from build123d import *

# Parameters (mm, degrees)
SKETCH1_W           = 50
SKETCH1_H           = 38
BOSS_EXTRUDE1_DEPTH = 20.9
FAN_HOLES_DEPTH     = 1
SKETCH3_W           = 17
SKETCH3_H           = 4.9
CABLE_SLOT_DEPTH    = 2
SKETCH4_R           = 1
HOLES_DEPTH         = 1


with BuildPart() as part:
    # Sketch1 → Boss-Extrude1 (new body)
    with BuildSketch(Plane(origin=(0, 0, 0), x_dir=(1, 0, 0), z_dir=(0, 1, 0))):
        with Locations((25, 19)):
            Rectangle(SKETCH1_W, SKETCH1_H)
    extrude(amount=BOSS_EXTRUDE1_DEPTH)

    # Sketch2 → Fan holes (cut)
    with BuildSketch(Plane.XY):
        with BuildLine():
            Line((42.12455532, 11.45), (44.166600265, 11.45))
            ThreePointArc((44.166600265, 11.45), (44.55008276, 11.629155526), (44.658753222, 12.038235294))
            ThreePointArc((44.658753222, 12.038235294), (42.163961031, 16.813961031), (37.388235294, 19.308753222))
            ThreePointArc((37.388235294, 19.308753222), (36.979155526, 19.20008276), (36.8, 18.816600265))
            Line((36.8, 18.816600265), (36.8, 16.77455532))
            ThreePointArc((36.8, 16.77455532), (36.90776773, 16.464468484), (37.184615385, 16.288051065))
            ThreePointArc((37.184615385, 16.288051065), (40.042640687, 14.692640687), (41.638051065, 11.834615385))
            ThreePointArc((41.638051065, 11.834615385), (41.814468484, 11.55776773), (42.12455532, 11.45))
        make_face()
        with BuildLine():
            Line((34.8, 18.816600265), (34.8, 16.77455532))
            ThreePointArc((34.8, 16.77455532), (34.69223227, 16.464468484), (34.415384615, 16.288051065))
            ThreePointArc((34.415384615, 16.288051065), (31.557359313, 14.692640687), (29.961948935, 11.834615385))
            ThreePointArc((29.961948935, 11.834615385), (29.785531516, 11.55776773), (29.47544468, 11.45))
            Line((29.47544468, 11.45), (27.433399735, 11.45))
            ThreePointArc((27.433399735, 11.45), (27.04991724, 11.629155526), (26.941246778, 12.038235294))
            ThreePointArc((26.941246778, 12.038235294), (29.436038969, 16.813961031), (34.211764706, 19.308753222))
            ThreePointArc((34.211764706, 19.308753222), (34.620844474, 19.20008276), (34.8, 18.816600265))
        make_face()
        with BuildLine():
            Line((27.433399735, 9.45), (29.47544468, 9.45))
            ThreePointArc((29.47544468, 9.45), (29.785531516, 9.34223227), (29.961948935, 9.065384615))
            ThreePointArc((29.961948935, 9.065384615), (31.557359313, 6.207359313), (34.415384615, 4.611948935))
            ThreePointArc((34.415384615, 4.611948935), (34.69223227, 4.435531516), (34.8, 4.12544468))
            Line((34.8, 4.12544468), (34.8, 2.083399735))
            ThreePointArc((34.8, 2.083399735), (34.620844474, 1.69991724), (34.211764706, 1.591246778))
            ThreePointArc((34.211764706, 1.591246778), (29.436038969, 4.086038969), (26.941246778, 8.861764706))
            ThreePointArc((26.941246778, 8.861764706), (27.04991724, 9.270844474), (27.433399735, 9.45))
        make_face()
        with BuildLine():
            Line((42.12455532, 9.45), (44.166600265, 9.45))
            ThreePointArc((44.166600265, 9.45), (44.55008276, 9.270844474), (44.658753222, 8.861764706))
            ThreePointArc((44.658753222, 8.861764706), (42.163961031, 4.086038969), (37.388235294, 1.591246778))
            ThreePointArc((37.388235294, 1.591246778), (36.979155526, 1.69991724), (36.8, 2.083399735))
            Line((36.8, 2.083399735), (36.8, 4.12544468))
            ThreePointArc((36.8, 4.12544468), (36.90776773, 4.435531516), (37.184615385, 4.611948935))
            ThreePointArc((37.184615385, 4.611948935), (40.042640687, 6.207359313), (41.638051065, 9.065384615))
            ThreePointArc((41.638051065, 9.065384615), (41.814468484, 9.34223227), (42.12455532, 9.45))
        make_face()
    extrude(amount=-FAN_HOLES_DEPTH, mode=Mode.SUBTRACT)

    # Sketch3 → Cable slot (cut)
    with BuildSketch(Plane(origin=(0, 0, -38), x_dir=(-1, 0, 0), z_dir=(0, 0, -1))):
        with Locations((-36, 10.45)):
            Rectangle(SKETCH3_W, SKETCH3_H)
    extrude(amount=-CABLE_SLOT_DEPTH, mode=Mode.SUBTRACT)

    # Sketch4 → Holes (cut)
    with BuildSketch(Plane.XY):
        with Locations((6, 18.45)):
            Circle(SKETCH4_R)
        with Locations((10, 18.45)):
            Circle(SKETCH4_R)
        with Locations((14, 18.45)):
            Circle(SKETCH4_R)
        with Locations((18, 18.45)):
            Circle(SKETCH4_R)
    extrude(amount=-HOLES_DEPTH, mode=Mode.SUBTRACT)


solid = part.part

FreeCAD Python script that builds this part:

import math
import FreeCAD as App
import Part
import Sketcher
from FreeCAD import Vector


def add_polygon(sketch, points):
    """Adds a closed chain of lines whose ends are joined by coincident constraints."""
    first, n = sketch.GeometryCount, len(points)
    for a, b in zip(points, points[1:] + points[:1]):
        sketch.addGeometry(Part.LineSegment(App.Vector(*a, 0), App.Vector(*b, 0)), False)
    for i in range(n):
        sketch.addConstraint(Sketcher.Constraint("Coincident", first + i, 2, first + (i + 1) % n, 1))

doc = App.newDocument("Part")
body = doc.addObject("PartDesign::Body", "Body")

# Sketch on XZ plane
sketch1 = body.newObject("Sketcher::SketchObject", "Sketch")
sketch1.AttachmentSupport = (doc.getObject("XZ_Plane"), [""])
sketch1.MapMode = "FlatFace"
add_polygon(sketch1, [(0, -38), (0, 0), (50, 0), (50, -38)])  # lines 0-3
sketch1.addConstraint([
    Sketcher.Constraint("Vertical", 0),
    Sketcher.Constraint("Horizontal", 1),
    Sketcher.Constraint("Vertical", 2),
    Sketcher.Constraint("Horizontal", 3),
    Sketcher.Constraint("Coincident", 0, 2, -1, 1),
    Sketcher.Constraint("DistanceX", 1, 1, 1, 2, 50.0),
    Sketcher.Constraint("DistanceY", 0, 1, 0, 2, 38.0),
])
pad1 = body.newObject("PartDesign::Pad", "Pad")
pad1.Profile = sketch1
pad1.Length = 20.9
pad1.Reversed = True

# Sketch on XY plane
sketch2 = body.newObject("Sketcher::SketchObject", "Sketch001")
sketch2.AttachmentSupport = (doc.getObject("XY_Plane"), [""])
sketch2.MapMode = "FlatFace"
sketch2.addGeometry([
    Part.LineSegment(Vector(42.12, 11.45, 0), Vector(44.17, 11.45, 0)),  # 0
    Part.ArcOfCircle(Part.Circle(Vector(44.17, 11.95, 0), Vector(0, 0, 1), 0.5), math.radians(-90), math.radians(10)),  # 1
    Part.ArcOfCircle(Part.Circle(Vector(35.8, 10.45, 0), Vector(0, 0, 1), 9), math.radians(10), math.radians(80)),  # 2
    Part.ArcOfCircle(Part.Circle(Vector(37.3, 18.82, 0), Vector(0, 0, 1), 0.5), math.radians(80), math.radians(180)),  # 3
    Part.LineSegment(Vector(36.8, 18.82, 0), Vector(36.8, 16.77, 0)),  # 4
    Part.ArcOfCircle(Part.Circle(Vector(37.3, 16.77, 0), Vector(0, 0, 1), 0.5), math.radians(-180), math.radians(-103)),  # 5
    Part.ArcOfCircle(Part.Circle(Vector(35.8, 10.45, 0), Vector(0, 0, 1), 6), math.radians(13), math.radians(77)),  # 6
    Part.ArcOfCircle(Part.Circle(Vector(42.12, 11.95, 0), Vector(0, 0, 1), 0.5), math.radians(-167), math.radians(-90)),  # 7
    Part.LineSegment(Vector(34.8, 16.77, 0), Vector(34.8, 18.82, 0)),  # 8
    Part.ArcOfCircle(Part.Circle(Vector(34.3, 18.82, 0), Vector(0, 0, 1), 0.5), math.radians(0), math.radians(100)),  # 9
    Part.ArcOfCircle(Part.Circle(Vector(35.8, 10.45, 0), Vector(0, 0, 1), 9), math.radians(100), math.radians(170)),  # 10
    Part.ArcOfCircle(Part.Circle(Vector(27.43, 11.95, 0), Vector(0, 0, 1), 0.5), math.radians(170), math.radians(270)),  # 11
    Part.LineSegment(Vector(27.43, 11.45, 0), Vector(29.48, 11.45, 0)),  # 12
    Part.ArcOfCircle(Part.Circle(Vector(29.48, 11.95, 0), Vector(0, 0, 1), 0.5), math.radians(-90), math.radians(-13)),  # 13
    Part.ArcOfCircle(Part.Circle(Vector(35.8, 10.45, 0), Vector(0, 0, 1), 6), math.radians(103), math.radians(167)),  # 14
    Part.ArcOfCircle(Part.Circle(Vector(34.3, 16.77, 0), Vector(0, 0, 1), 0.5), math.radians(-77), math.radians(0)),  # 15
    Part.LineSegment(Vector(29.48, 9.45, 0), Vector(27.43, 9.45, 0)),  # 16
    Part.ArcOfCircle(Part.Circle(Vector(27.43, 8.95, 0), Vector(0, 0, 1), 0.5), math.radians(90), math.radians(190)),  # 17
    Part.ArcOfCircle(Part.Circle(Vector(35.8, 10.45, 0), Vector(0, 0, 1), 9), math.radians(-170), math.radians(-100)),  # 18
    Part.ArcOfCircle(Part.Circle(Vector(34.3, 2.08, 0), Vector(0, 0, 1), 0.5), math.radians(-100), math.radians(0)),  # 19
    Part.LineSegment(Vector(34.8, 2.08, 0), Vector(34.8, 4.13, 0)),  # 20
    Part.ArcOfCircle(Part.Circle(Vector(34.3, 4.13, 0), Vector(0, 0, 1), 0.5), math.radians(0), math.radians(77)),  # 21
    Part.ArcOfCircle(Part.Circle(Vector(35.8, 10.45, 0), Vector(0, 0, 1), 6), math.radians(-167), math.radians(-103)),  # 22
    Part.ArcOfCircle(Part.Circle(Vector(29.48, 8.95, 0), Vector(0, 0, 1), 0.5), math.radians(13), math.radians(90)),  # 23
    Part.LineSegment(Vector(44.17, 9.45, 0), Vector(42.12, 9.45, 0)),  # 24
    Part.ArcOfCircle(Part.Circle(Vector(42.12, 8.95, 0), Vector(0, 0, 1), 0.5), math.radians(90), math.radians(167)),  # 25
    Part.ArcOfCircle(Part.Circle(Vector(35.8, 10.45, 0), Vector(0, 0, 1), 6), math.radians(-77), math.radians(-13)),  # 26
    Part.ArcOfCircle(Part.Circle(Vector(37.3, 4.13, 0), Vector(0, 0, 1), 0.5), math.radians(103), math.radians(180)),  # 27
    Part.LineSegment(Vector(36.8, 4.13, 0), Vector(36.8, 2.08, 0)),  # 28
    Part.ArcOfCircle(Part.Circle(Vector(37.3, 2.08, 0), Vector(0, 0, 1), 0.5), math.radians(180), math.radians(280)),  # 29
    Part.ArcOfCircle(Part.Circle(Vector(35.8, 10.45, 0), Vector(0, 0, 1), 9), math.radians(-80), math.radians(-10)),  # 30
    Part.ArcOfCircle(Part.Circle(Vector(44.17, 8.95, 0), Vector(0, 0, 1), 0.5), math.radians(-10), math.radians(90)),  # 31
], False)
sketch2.addConstraint([
    Sketcher.Constraint("Tangent", 0, 2, 1, 1),
    Sketcher.Constraint("Tangent", 1, 2, 2, 1),
    Sketcher.Constraint("Tangent", 2, 2, 3, 1),
    Sketcher.Constraint("Tangent", 3, 2, 4, 1),
    Sketcher.Constraint("Tangent", 4, 2, 5, 1),
    Sketcher.Constraint("Tangent", 5, 2, 6, 2),
    Sketcher.Constraint("Tangent", 6, 1, 7, 1),
    Sketcher.Constraint("Tangent", 7, 2, 0, 1),
    Sketcher.Constraint("Tangent", 8, 2, 9, 1),
    Sketcher.Constraint("Tangent", 9, 2, 10, 1),
    Sketcher.Constraint("Tangent", 10, 2, 11, 1),
    Sketcher.Constraint("Tangent", 11, 2, 12, 1),
    Sketcher.Constraint("Tangent", 12, 2, 13, 1),
    Sketcher.Constraint("Tangent", 13, 2, 14, 2),
    Sketcher.Constraint("Tangent", 14, 1, 15, 1),
    Sketcher.Constraint("Tangent", 15, 2, 8, 1),
    Sketcher.Constraint("Tangent", 16, 2, 17, 1),
    Sketcher.Constraint("Tangent", 17, 2, 18, 1),
    Sketcher.Constraint("Tangent", 18, 2, 19, 1),
    Sketcher.Constraint("Tangent", 19, 2, 20, 1),
    Sketcher.Constraint("Tangent", 20, 2, 21, 1),
    Sketcher.Constraint("Tangent", 21, 2, 22, 2),
    Sketcher.Constraint("Tangent", 22, 1, 23, 1),
    Sketcher.Constraint("Tangent", 23, 2, 16, 1),
    Sketcher.Constraint("Tangent", 24, 2, 25, 1),
    Sketcher.Constraint("Tangent", 25, 2, 26, 2),
    Sketcher.Constraint("Tangent", 26, 1, 27, 1),
    Sketcher.Constraint("Tangent", 27, 2, 28, 1),
    Sketcher.Constraint("Tangent", 28, 2, 29, 1),
    Sketcher.Constraint("Tangent", 29, 2, 30, 1),
    Sketcher.Constraint("Tangent", 30, 2, 31, 1),
    Sketcher.Constraint("Tangent", 31, 2, 24, 1),
    Sketcher.Constraint("Horizontal", 0),
    Sketcher.Constraint("Vertical", 4),
    Sketcher.Constraint("Vertical", 8),
    Sketcher.Constraint("Horizontal", 12),
    Sketcher.Constraint("Horizontal", 16),
    Sketcher.Constraint("Vertical", 20),
    Sketcher.Constraint("Horizontal", 24),
    Sketcher.Constraint("Vertical", 28),
    Sketcher.Constraint("Coincident", 6, 3, 2, 3),
    Sketcher.Constraint("Coincident", 10, 3, 2, 3),
    Sketcher.Constraint("Coincident", 14, 3, 2, 3),
    Sketcher.Constraint("Coincident", 18, 3, 2, 3),
    Sketcher.Constraint("Coincident", 22, 3, 2, 3),
    Sketcher.Constraint("Coincident", 26, 3, 2, 3),
    Sketcher.Constraint("Coincident", 30, 3, 2, 3),
    Sketcher.Constraint("Equal", 1, 3),
    Sketcher.Constraint("Equal", 3, 5),
    Sketcher.Constraint("Equal", 5, 7),
    Sketcher.Constraint("Equal", 7, 9),
    Sketcher.Constraint("Equal", 2, 10),
    Sketcher.Constraint("Equal", 9, 11),
    Sketcher.Constraint("Equal", 11, 13),
    Sketcher.Constraint("Equal", 6, 14),
    Sketcher.Constraint("Equal", 13, 15),
    Sketcher.Constraint("Equal", 15, 17),
    Sketcher.Constraint("Equal", 10, 18),
    Sketcher.Constraint("Equal", 17, 19),
    Sketcher.Constraint("Equal", 19, 21),
    Sketcher.Constraint("Equal", 14, 22),
    Sketcher.Constraint("Equal", 21, 23),
    Sketcher.Constraint("Equal", 23, 25),
    Sketcher.Constraint("Equal", 22, 26),
    Sketcher.Constraint("Equal", 25, 27),
    Sketcher.Constraint("Equal", 27, 29),
    Sketcher.Constraint("Equal", 18, 30),
    Sketcher.Constraint("Equal", 29, 31),
    Sketcher.Constraint("Horizontal", 3, 3, 9, 3),
    Sketcher.Constraint("Horizontal", 7, 3, 11, 3),
    Sketcher.Constraint("Horizontal", 23, 3, 25, 3),
    Sketcher.Constraint("Horizontal", 21, 3, 27, 3),
    Sketcher.Constraint("Vertical", 11, 3, 17, 3),
    Sketcher.Constraint("Vertical", 15, 3, 19, 3),
    Sketcher.Constraint("Equal", 24, 4),
    Sketcher.Constraint("Radius", 2, 9.0),
    Sketcher.Constraint("Radius", 6, 6.0),
    Sketcher.Constraint("Radius", 1, 0.5),
    Sketcher.Constraint("DistanceX", 9, 3, 3, 3, 3.0),
    Sketcher.Constraint("DistanceX", -1, 1, 2, 3, 35.8),
    Sketcher.Constraint("DistanceY", -1, 1, 1, 3, 11.95),
])
pocket1 = body.newObject("PartDesign::Pocket", "Pocket")
pocket1.Profile = sketch2
pocket1.Length = 1

# Sketch on XY plane
sketch3 = body.newObject("Sketcher::SketchObject", "Sketch002")
sketch3.AttachmentSupport = (doc.getObject("XY_Plane"), [""])
sketch3.MapMode = "FlatFace"
sketch3.AttachmentOffset = App.Placement(Vector(0, 0, -38), App.Rotation())
add_polygon(sketch3, [(44.5, 12.9), (44.5, 8), (27.5, 8), (27.5, 12.9)])  # lines 0-3
sketch3.addConstraint([
    Sketcher.Constraint("Vertical", 0),
    Sketcher.Constraint("Horizontal", 1),
    Sketcher.Constraint("Vertical", 2),
    Sketcher.Constraint("Horizontal", 3),
    Sketcher.Constraint("DistanceX", 1, 2, 1, 1, 17.0),
    Sketcher.Constraint("DistanceY", 0, 2, 0, 1, 4.9),
    Sketcher.Constraint("DistanceY", -1, 1, 0, 2, 8.0),
    Sketcher.Constraint("DistanceX", -1, 1, 0, 2, 44.5),
])
pocket2 = body.newObject("PartDesign::Pocket", "Pocket001")
pocket2.Profile = sketch3
pocket2.Length = 2
pocket2.Reversed = True

# Sketch on XY plane
sketch4 = body.newObject("Sketcher::SketchObject", "Sketch003")
sketch4.AttachmentSupport = (doc.getObject("XY_Plane"), [""])
sketch4.MapMode = "FlatFace"
sketch4.addGeometry([
    Part.Circle(Vector(6, 18.4, 0), Vector(0, 0, 1), 1),
    Part.Circle(Vector(10, 18.4, 0), Vector(0, 0, 1), 1),
    Part.Circle(Vector(14, 18.4, 0), Vector(0, 0, 1), 1),
    Part.Circle(Vector(18, 18.4, 0), Vector(0, 0, 1), 1),
], False)
sketch4.addConstraint([
    Sketcher.Constraint("Equal", 0, 1),
    Sketcher.Constraint("Equal", 1, 2),
    Sketcher.Constraint("Equal", 2, 3),
    Sketcher.Constraint("Horizontal", 0, 3, 1, 3),
    Sketcher.Constraint("Horizontal", 1, 3, 2, 3),
    Sketcher.Constraint("Horizontal", 2, 3, 3, 3),
    Sketcher.Constraint("Diameter", 0, 2.0),
    Sketcher.Constraint("DistanceX", -1, 1, 0, 3, 6.0),
    Sketcher.Constraint("DistanceX", -1, 1, 1, 3, 10.0),
    Sketcher.Constraint("DistanceX", -1, 1, 2, 3, 14.0),
    Sketcher.Constraint("DistanceX", -1, 1, 3, 3, 18.0),
    Sketcher.Constraint("DistanceY", -1, 1, 0, 3, 18.45),
])
pocket3 = body.newObject("PartDesign::Pocket", "Pocket002")
pocket3.Profile = sketch4
pocket3.Length = 1

doc.recompute()
